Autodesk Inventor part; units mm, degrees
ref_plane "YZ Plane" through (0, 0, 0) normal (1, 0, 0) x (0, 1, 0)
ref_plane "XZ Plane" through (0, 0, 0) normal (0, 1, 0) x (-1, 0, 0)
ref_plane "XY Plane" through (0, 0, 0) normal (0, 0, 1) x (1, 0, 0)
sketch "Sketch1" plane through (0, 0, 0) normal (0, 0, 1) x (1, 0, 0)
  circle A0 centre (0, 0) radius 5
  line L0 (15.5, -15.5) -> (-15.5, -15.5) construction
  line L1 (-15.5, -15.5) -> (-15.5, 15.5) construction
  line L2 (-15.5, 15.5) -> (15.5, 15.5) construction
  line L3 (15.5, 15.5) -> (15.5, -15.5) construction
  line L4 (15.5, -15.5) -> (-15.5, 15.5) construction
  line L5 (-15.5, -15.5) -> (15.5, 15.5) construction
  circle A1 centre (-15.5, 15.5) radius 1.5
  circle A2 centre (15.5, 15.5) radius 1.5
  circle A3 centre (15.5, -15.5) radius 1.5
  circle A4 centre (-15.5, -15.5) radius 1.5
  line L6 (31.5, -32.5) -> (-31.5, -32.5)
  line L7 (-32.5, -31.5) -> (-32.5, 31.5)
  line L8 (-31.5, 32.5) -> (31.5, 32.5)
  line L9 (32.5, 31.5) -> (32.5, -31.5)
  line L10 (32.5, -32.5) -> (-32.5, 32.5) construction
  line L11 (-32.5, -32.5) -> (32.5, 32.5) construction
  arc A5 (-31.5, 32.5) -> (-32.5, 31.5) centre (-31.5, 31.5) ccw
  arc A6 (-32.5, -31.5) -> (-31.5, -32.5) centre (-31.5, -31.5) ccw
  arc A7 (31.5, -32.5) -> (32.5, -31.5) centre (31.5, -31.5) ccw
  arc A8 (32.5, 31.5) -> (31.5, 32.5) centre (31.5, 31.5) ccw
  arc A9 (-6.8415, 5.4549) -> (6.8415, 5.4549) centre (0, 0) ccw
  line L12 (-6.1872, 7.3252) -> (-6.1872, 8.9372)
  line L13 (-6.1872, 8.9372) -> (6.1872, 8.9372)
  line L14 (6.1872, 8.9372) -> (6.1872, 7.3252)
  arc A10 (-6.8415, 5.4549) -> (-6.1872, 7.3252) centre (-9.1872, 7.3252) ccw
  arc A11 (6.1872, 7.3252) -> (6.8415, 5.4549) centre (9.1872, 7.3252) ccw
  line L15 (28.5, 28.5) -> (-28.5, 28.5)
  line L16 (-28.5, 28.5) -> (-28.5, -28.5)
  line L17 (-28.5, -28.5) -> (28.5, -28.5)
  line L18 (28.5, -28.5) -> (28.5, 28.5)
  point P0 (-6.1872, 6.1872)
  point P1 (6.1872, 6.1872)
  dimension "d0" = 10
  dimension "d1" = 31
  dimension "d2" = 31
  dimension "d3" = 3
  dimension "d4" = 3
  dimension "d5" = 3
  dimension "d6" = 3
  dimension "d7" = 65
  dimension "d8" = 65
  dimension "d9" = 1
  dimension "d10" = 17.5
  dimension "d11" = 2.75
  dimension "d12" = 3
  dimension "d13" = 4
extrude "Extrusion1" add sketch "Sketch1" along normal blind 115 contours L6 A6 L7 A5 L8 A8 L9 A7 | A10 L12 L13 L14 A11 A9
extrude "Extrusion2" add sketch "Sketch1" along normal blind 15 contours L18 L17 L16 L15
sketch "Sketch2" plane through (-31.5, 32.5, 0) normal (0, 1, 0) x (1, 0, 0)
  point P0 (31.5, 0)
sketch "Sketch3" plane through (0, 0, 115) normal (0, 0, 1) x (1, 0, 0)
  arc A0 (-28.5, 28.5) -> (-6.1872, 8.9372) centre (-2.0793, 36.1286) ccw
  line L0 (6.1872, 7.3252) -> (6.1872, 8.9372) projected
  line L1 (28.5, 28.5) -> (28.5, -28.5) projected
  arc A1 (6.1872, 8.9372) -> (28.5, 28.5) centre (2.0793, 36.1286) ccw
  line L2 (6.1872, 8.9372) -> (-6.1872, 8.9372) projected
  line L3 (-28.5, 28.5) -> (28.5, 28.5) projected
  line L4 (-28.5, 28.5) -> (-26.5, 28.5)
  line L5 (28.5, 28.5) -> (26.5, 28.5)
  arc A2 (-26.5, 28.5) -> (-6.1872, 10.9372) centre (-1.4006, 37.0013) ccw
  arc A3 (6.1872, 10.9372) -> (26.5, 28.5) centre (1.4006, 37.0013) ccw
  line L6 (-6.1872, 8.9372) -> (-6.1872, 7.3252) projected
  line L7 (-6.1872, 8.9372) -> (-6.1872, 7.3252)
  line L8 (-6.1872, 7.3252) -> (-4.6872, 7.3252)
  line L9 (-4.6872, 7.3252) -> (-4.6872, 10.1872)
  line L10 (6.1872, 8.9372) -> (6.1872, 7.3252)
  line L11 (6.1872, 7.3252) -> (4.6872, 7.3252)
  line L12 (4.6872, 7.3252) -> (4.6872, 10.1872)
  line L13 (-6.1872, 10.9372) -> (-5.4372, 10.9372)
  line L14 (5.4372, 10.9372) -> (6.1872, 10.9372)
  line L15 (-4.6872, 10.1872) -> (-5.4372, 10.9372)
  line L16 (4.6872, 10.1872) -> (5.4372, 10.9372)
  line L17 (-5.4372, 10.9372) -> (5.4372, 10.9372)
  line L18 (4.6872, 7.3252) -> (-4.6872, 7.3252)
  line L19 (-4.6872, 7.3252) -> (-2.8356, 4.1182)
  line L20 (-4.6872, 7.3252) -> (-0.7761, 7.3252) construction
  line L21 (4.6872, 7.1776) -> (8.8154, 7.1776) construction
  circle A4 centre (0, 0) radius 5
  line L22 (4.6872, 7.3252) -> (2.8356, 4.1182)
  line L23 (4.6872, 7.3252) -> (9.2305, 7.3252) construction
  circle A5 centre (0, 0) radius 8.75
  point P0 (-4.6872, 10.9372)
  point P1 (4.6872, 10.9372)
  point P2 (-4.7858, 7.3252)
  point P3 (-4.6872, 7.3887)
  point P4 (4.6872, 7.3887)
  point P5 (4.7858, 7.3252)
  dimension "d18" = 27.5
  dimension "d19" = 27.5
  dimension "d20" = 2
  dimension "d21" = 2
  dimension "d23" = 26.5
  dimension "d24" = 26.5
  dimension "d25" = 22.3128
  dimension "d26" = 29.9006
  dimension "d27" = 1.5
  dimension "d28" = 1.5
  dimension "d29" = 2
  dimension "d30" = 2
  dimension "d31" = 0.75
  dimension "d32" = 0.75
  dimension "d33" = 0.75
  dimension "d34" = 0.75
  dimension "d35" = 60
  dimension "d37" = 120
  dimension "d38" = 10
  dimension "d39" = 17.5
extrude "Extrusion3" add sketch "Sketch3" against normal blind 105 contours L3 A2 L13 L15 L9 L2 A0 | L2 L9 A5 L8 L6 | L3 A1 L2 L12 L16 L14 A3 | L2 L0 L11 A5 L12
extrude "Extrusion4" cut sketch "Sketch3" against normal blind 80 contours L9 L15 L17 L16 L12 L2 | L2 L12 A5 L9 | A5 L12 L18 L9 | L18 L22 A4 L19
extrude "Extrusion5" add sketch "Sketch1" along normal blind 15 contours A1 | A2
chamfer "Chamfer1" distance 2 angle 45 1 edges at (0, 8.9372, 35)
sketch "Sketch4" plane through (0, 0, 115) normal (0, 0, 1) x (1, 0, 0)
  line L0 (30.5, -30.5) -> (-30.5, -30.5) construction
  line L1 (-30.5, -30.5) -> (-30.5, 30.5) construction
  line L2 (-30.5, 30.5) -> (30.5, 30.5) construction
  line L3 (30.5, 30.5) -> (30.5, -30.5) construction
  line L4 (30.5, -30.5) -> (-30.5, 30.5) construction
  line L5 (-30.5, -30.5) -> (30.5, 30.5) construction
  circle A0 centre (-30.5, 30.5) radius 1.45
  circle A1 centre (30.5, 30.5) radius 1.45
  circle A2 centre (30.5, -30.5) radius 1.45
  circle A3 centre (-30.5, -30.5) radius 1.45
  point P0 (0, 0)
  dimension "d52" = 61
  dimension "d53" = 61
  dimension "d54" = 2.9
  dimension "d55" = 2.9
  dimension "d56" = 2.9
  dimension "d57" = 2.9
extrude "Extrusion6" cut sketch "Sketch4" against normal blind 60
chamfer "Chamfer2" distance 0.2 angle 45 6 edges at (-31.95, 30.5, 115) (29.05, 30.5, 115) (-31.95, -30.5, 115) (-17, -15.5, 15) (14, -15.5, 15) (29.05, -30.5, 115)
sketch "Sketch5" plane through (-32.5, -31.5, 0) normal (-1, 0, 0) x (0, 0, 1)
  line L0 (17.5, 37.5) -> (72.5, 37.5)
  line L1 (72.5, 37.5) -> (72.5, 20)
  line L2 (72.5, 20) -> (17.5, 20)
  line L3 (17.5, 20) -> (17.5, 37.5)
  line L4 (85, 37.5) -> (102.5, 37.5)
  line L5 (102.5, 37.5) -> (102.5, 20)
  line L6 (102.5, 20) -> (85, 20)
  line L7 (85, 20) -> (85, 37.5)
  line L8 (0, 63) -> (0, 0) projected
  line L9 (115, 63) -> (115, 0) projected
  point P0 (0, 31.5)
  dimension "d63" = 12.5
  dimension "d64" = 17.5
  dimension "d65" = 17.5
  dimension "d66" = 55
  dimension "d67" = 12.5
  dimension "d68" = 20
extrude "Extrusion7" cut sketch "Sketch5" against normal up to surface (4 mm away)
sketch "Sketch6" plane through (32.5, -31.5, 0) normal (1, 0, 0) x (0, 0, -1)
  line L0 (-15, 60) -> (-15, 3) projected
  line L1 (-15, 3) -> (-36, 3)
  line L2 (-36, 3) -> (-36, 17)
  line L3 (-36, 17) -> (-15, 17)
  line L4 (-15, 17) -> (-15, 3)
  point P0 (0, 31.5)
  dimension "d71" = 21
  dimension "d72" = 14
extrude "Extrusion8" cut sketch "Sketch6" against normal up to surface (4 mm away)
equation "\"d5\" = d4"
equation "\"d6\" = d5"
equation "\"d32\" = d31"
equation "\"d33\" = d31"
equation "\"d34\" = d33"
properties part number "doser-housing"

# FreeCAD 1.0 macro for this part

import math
import FreeCAD as App
import Part
import Sketcher
Q = App.Units.Quantity


def edges_at(feature, points):
    """Names of the edges that pass closest to the given points."""
    edges = feature.Shape.Edges
    near = lambda p: min(range(len(edges)), key=lambda i: edges[i].distToShape(Part.Vertex(*p))[0])
    return sorted({f"Edge{near(p) + 1}" for p in points})


def add_polygon(sketch, points):
    """Adds a closed chain of lines whose ends are joined by coincident constraints."""
    first, n = sketch.GeometryCount, len(points)
    for a, b in zip(points, points[1:] + points[:1]):
        sketch.addGeometry(Part.LineSegment(App.Vector(*a, 0), App.Vector(*b, 0)), False)
    for i in range(n):
        sketch.addConstraint(Sketcher.Constraint("Coincident", first + i, 2, first + (i + 1) % n, 1))

doc = App.newDocument("Part")
params = doc.addObject("Spreadsheet::Sheet", "Params")
for row, (alias, value) in enumerate([
    ("sketch1_diameter", "10 mm"),
    ("sketch1_radius", "1 mm"),
    ("sketch1_radius2", "3 mm"),
    ("sketch1_radius3", "8.75 mm"),
    ("sketch1_width", "63 mm"),
    ("pad1_length", "115 mm"),
    ("sketch2_diameter", "3 mm"),
    ("sketch2_radius", "3 mm"),
    ("sketch2_radius2", "8.75 mm"),
    ("sketch2_width", "57 mm"),
    ("pad2_length", "15 mm"),
    ("sketch3_radius", "27.5 mm"),
    ("sketch3_radius2", "26.5 mm"),
    ("sketch3_width", "2 mm"),
    ("sketch3_radius3", "8.75 mm"),
    ("sketch3_width2", "0.75 mm"),
    ("pad3_length", "105 mm"),
    ("sketch4_radius", "5 mm"),
    ("pocket1_length", "80 mm"),
    ("sketch5_diameter", "3 mm"),
    ("pad4_length", "15 mm"),
    ("chamfer_size", "2 mm"),
    ("sketch6_diameter", "2.9 mm"),
    ("pocket2_length", "60 mm"),
    ("chamfer2_size", "0.2 mm"),
    ("sketch7_height", "55 mm"),
    ("sketch7_width", "17.5 mm"),
    ("pocket3_length", "4 mm"),
    ("sketch8_width", "14 mm"),
    ("sketch8_height", "21 mm"),
    ("pocket4_length", "4 mm"),
], start=1):
    params.set(f"A{row}", alias)
    params.set(f"B{row}", "=" + value)
    params.setAlias(f"B{row}", alias)

body = doc.addObject("PartDesign::Body", "Body")
body.AllowCompound = True

# Sketch on XY plane
sketch1 = doc.addObject("Sketcher::SketchObject", "Sketch")
body.addObject(sketch1)
sketch1.AttachmentSupport = (doc.XY_Plane, [""])
sketch1.MapMode = "FlatFace"
sketch1.addGeometry(Part.LineSegment(App.Vector(-31.5, -32.5, 0), App.Vector(31.5, -32.5, 0)), False)  # 0
sketch1.addGeometry(Part.ArcOfCircle(Part.Circle(App.Vector(31.5, -31.5, 0), App.Vector(0, 0, 1), 1), math.radians(-90), math.radians(0)), False)  # 1
sketch1.addGeometry(Part.LineSegment(App.Vector(32.5, -31.5, 0), App.Vector(32.5, 31.5, 0)), False)  # 2
sketch1.addGeometry(Part.ArcOfCircle(Part.Circle(App.Vector(31.5, 31.5, 0), App.Vector(0, 0, 1), 1), math.radians(0), math.radians(90)), False)  # 3
sketch1.addGeometry(Part.LineSegment(App.Vector(31.5, 32.5, 0), App.Vector(-31.5, 32.5, 0)), False)  # 4
sketch1.addGeometry(Part.ArcOfCircle(Part.Circle(App.Vector(-31.5, 31.5, 0), App.Vector(0, 0, 1), 1), math.radians(90), math.radians(180)), False)  # 5
sketch1.addGeometry(Part.LineSegment(App.Vector(-32.5, 31.5, 0), App.Vector(-32.5, -31.5, 0)), False)  # 6
sketch1.addGeometry(Part.ArcOfCircle(Part.Circle(App.Vector(-31.5, -31.5, 0), App.Vector(0, 0, 1), 1), math.radians(180), math.radians(270)), False)  # 7
add_polygon(sketch1, [(-28.5, 28.5), (28.5, 28.5), (28.5, -28.5), (-28.5, -28.5)])  # lines 8-11
sketch1.addGeometry(Part.ArcOfCircle(Part.Circle(App.Vector(-9.2, 7.3, 0), App.Vector(0, 0, 1), 3), math.radians(-39), math.radians(0)), False)  # 12
sketch1.addGeometry(Part.ArcOfCircle(Part.Circle(App.Vector(0, 0, 0), App.Vector(0, 0, 1), 8.7), math.radians(141), math.radians(399)), False)  # 13
sketch1.addGeometry(Part.ArcOfCircle(Part.Circle(App.Vector(9.2, 7.3, 0), App.Vector(0, 0, 1), 3), math.radians(180), math.radians(219)), False)  # 14
sketch1.addGeometry(Part.LineSegment(App.Vector(6.2, 7.3, 0), App.Vector(6.2, 8.9, 0)), False)  # 15
sketch1.addGeometry(Part.LineSegment(App.Vector(6.2, 8.9, 0), App.Vector(-6.2, 8.9, 0)), False)  # 16
sketch1.addGeometry(Part.LineSegment(App.Vector(-6.2, 8.9, 0), App.Vector(-6.2, 7.3, 0)), False)  # 17
sketch1.addGeometry(Part.Circle(App.Vector(0, 0, 0), App.Vector(0, 0, 1), 5), False)  # 18
sketch1.addConstraint(Sketcher.Constraint("Tangent", 0, 2, 1, 1))
sketch1.addConstraint(Sketcher.Constraint("Tangent", 1, 2, 2, 1))
sketch1.addConstraint(Sketcher.Constraint("Tangent", 2, 2, 3, 1))
sketch1.addConstraint(Sketcher.Constraint("Tangent", 3, 2, 4, 1))
sketch1.addConstraint(Sketcher.Constraint("Tangent", 4, 2, 5, 1))
sketch1.addConstraint(Sketcher.Constraint("Tangent", 5, 2, 6, 1))
sketch1.addConstraint(Sketcher.Constraint("Tangent", 6, 2, 7, 1))
sketch1.addConstraint(Sketcher.Constraint("Tangent", 7, 2, 0, 1))
sketch1.addConstraint(Sketcher.Constraint("Tangent", 12, 1, 13, 1))
sketch1.addConstraint(Sketcher.Constraint("Tangent", 13, 2, 14, 2))
sketch1.addConstraint(Sketcher.Constraint("Tangent", 14, 1, 15, 1))
sketch1.addConstraint(Sketcher.Constraint("Coincident", 15, 2, 16, 1))
sketch1.addConstraint(Sketcher.Constraint("Coincident", 16, 2, 17, 1))
sketch1.addConstraint(Sketcher.Constraint("Tangent", 17, 2, 12, 2))
sketch1.addConstraint(Sketcher.Constraint("Horizontal", 0))
sketch1.addConstraint(Sketcher.Constraint("Vertical", 2))
sketch1.addConstraint(Sketcher.Constraint("Horizontal", 4))
sketch1.addConstraint(Sketcher.Constraint("Vertical", 6))
sketch1.addConstraint(Sketcher.Constraint("Horizontal", 8))
sketch1.addConstraint(Sketcher.Constraint("Vertical", 9))
sketch1.addConstraint(Sketcher.Constraint("Horizontal", 10))
sketch1.addConstraint(Sketcher.Constraint("Vertical", 11))
sketch1.addConstraint(Sketcher.Constraint("Vertical", 15))
sketch1.addConstraint(Sketcher.Constraint("Horizontal", 16))
sketch1.addConstraint(Sketcher.Constraint("Vertical", 17))
sketch1.addConstraint(Sketcher.Constraint("Coincident", 13, 3, -1, 1))
sketch1.addConstraint(Sketcher.Constraint("Coincident", 18, 3, -1, 1))
sketch1.addConstraint(Sketcher.Constraint("Equal", 1, 3))
sketch1.addConstraint(Sketcher.Constraint("Equal", 3, 5))
sketch1.addConstraint(Sketcher.Constraint("Equal", 5, 7))
sketch1.addConstraint(Sketcher.Constraint("Equal", 12, 14))
sketch1.addConstraint(Sketcher.Constraint("Symmetric", 1, 3, 5, 3, -1, 1))
sketch1.addConstraint(Sketcher.Constraint("Symmetric", 8, 2, 10, 2, -1, 1))
sketch1.addConstraint(Sketcher.Constraint("Horizontal", 12, 3, 14, 3))
sketch1.addConstraint(Sketcher.Constraint("Equal", 4, 2))
sketch1.addConstraint(Sketcher.Constraint("Equal", 10, 9))
sketch1.addConstraint(Sketcher.Constraint("Diameter", 18, 10.0))
sketch1.addConstraint(Sketcher.Constraint("Radius", 1, 1.0))
sketch1.addConstraint(Sketcher.Constraint("Radius", 12, 3.0))
sketch1.addConstraint(Sketcher.Constraint("Radius", 13, 8.75))
sketch1.addConstraint(Sketcher.Constraint("DistanceX", 8, 2, 3, 3, 3.0))
sketch1.addConstraint(Sketcher.Constraint("DistanceX", 0, 1, 0, 2, 63.0))
sketch1.addConstraint(Sketcher.Constraint("DistanceY", 15, 1, 15, 2, 1.612))
sketch1.addConstraint(Sketcher.Constraint("DistanceX", 16, 2, 16, 1, 12.3744))
sketch1.setExpression("Constraints[40]", "Params.sketch1_diameter")
sketch1.setExpression("Constraints[41]", "Params.sketch1_radius")
sketch1.setExpression("Constraints[42]", "Params.sketch1_radius2")
sketch1.setExpression("Constraints[43]", "Params.sketch1_radius3")
sketch1.setExpression("Constraints[45]", "Params.sketch1_width")
pad1 = doc.addObject("PartDesign::Pad", "Pad")
body.addObject(pad1)
pad1.Profile = sketch1
pad1.setExpression("Length", "Params.pad1_length")

# Sketch on XY plane
sketch2 = doc.addObject("Sketcher::SketchObject", "Sketch001")
body.addObject(sketch2)
sketch2.AttachmentSupport = (doc.XY_Plane, [""])
sketch2.MapMode = "FlatFace"
add_polygon(sketch2, [(28.5, -28.5), (28.5, 28.5), (-28.5, 28.5), (-28.5, -28.5)])  # lines 0-3
sketch2.addGeometry(Part.Circle(App.Vector(-15.5, -15.5, 0), App.Vector(0, 0, 1), 1.5), False)  # 4
sketch2.addGeometry(Part.Circle(App.Vector(15.5, -15.5, 0), App.Vector(0, 0, 1), 1.5), False)  # 5
sketch2.addGeometry(Part.Circle(App.Vector(-15.5, 15.5, 0), App.Vector(0, 0, 1), 1.5), False)  # 6
sketch2.addGeometry(Part.ArcOfCircle(Part.Circle(App.Vector(0, 0, 0), App.Vector(0, 0, 1), 8.7), math.radians(141), math.radians(399)), False)  # 7
sketch2.addGeometry(Part.ArcOfCircle(Part.Circle(App.Vector(-9.2, 7.3, 0), App.Vector(0, 0, 1), 3), math.radians(-39), math.radians(0)), False)  # 8
sketch2.addGeometry(Part.LineSegment(App.Vector(-6.2, 7.3, 0), App.Vector(-6.2, 8.9, 0)), False)  # 9
sketch2.addGeometry(Part.LineSegment(App.Vector(-6.2, 8.9, 0), App.Vector(6.2, 8.9, 0)), False)  # 10
sketch2.addGeometry(Part.LineSegment(App.Vector(6.2, 8.9, 0), App.Vector(6.2, 7.3, 0)), False)  # 11
sketch2.addGeometry(Part.ArcOfCircle(Part.Circle(App.Vector(9.2, 7.3, 0), App.Vector(0, 0, 1), 3), math.radians(180), math.radians(219)), False)  # 12
sketch2.addGeometry(Part.Circle(App.Vector(15.5, 15.5, 0), App.Vector(0, 0, 1), 1.5), False)  # 13
sketch2.addConstraint(Sketcher.Constraint("Tangent", 7, 1, 8, 1))
sketch2.addConstraint(Sketcher.Constraint("Tangent", 8, 2, 9, 1))
sketch2.addConstraint(Sketcher.Constraint("Coincident", 9, 2, 10, 1))
sketch2.addConstraint(Sketcher.Constraint("Coincident", 10, 2, 11, 1))
sketch2.addConstraint(Sketcher.Constraint("Tangent", 11, 2, 12, 1))
sketch2.addConstraint(Sketcher.Constraint("Tangent", 12, 2, 7, 2))
sketch2.addConstraint(Sketcher.Constraint("Vertical", 0))
sketch2.addConstraint(Sketcher.Constraint("Horizontal", 1))
sketch2.addConstraint(Sketcher.Constraint("Vertical", 2))
sketch2.addConstraint(Sketcher.Constraint("Horizontal", 3))
sketch2.addConstraint(Sketcher.Constraint("Vertical", 9))
sketch2.addConstraint(Sketcher.Constraint("Horizontal", 10))
sketch2.addConstraint(Sketcher.Constraint("Vertical", 11))
sketch2.addConstraint(Sketcher.Constraint("Coincident", 7, 3, -1, 1))
sketch2.addConstraint(Sketcher.Constraint("Equal", 4, 5))
sketch2.addConstraint(Sketcher.Constraint("Equal", 5, 6))
sketch2.addConstraint(Sketcher.Constraint("Equal", 8, 12))
sketch2.addConstraint(Sketcher.Constraint("Equal", 6, 13))
sketch2.addConstraint(Sketcher.Constraint("Symmetric", 5, 3, 6, 3, -1, 1))
sketch2.addConstraint(Sketcher.Constraint("Symmetric", 4, 3, 13, 3, -1, 1))
sketch2.addConstraint(Sketcher.Constraint("Symmetric", 0, 2, 2, 2, -1, 1))
sketch2.addConstraint(Sketcher.Constraint("Symmetric", 4, 3, 5, 3, -2))
sketch2.addConstraint(Sketcher.Constraint("Horizontal", 8, 3, 12, 3))
sketch2.addConstraint(Sketcher.Constraint("Equal", 3, 0))
sketch2.addConstraint(Sketcher.Constraint("Diameter", 4, 3.0))
sketch2.addConstraint(Sketcher.Constraint("Radius", 8, 3.0))
sketch2.addConstraint(Sketcher.Constraint("Radius", 7, 8.75))
sketch2.addConstraint(Sketcher.Constraint("DistanceX", 4, 3, 5, 3, 31.0))
sketch2.addConstraint(Sketcher.Constraint("DistanceY", 4, 3, 6, 3, 31.0))
sketch2.addConstraint(Sketcher.Constraint("DistanceX", 1, 2, 1, 1, 57.0))
sketch2.addConstraint(Sketcher.Constraint("DistanceY", 9, 1, 9, 2, 1.612))
sketch2.addConstraint(Sketcher.Constraint("DistanceX", 10, 1, 10, 2, 12.3744))
sketch2.setExpression("Constraints[28]", "Params.sketch2_diameter")
sketch2.setExpression("Constraints[29]", "Params.sketch2_radius")
sketch2.setExpression("Constraints[30]", "Params.sketch2_radius2")
sketch2.setExpression("Constraints[33]", "Params.sketch2_width")
pad2 = doc.addObject("PartDesign::Pad", "Pad001")
body.addObject(pad2)
pad2.Profile = sketch2
pad2.setExpression("Length", "Params.pad2_length")

# Sketch on XY plane
sketch3 = doc.addObject("Sketcher::SketchObject", "Sketch002")
body.addObject(sketch3)
sketch3.AttachmentSupport = (doc.XY_Plane, [""])
sketch3.MapMode = "FlatFace"
sketch3.AttachmentOffset = App.Placement(App.Vector(0, 0, 115), App.Rotation())
sketch3.addGeometry(Part.LineSegment(App.Vector(-26.5, 28.5, 0), App.Vector(-28.5, 28.5, 0)), False)
sketch3.addGeometry(Part.ArcOfCircle(Part.Circle(App.Vector(-2.08, 36.13, 0), App.Vector(0, 0, 1), 27.5), math.radians(-164), math.radians(-99)), False)
sketch3.addGeometry(Part.LineSegment(App.Vector(-6.19, 8.94, 0), App.Vector(-6.19, 7.33, 0)), False)
sketch3.addGeometry(Part.LineSegment(App.Vector(-6.19, 7.33, 0), App.Vector(-4.79, 7.33, 0)), False)
sketch3.addGeometry(Part.ArcOfCircle(Part.Circle(App.Vector(0, 0, 0), App.Vector(0, 0, 1), 8.75), math.radians(122.39), math.radians(123.16)), False)
sketch3.addGeometry(Part.LineSegment(App.Vector(-4.69, 7.39, 0), App.Vector(-4.69, 10.19, 0)), False)
sketch3.addGeometry(Part.LineSegment(App.Vector(-4.69, 10.19, 0), App.Vector(-5.44, 10.94, 0)), False)
sketch3.addGeometry(Part.LineSegment(App.Vector(-5.44, 10.94, 0), App.Vector(-6.19, 10.94, 0)), False)
sketch3.addGeometry(Part.ArcOfCircle(Part.Circle(App.Vector(-1.4, 37, 0), App.Vector(0, 0, 1), 26.5), math.radians(-161), math.radians(-100)), False)
sketch3.addGeometry(Part.LineSegment(App.Vector(28.5, 28.5, 0), App.Vector(26.5, 28.5, 0)), False)
sketch3.addGeometry(Part.ArcOfCircle(Part.Circle(App.Vector(1.4, 37, 0), App.Vector(0, 0, 1), 26.5), math.radians(-80), math.radians(-19)), False)
sketch3.addGeometry(Part.LineSegment(App.Vector(6.19, 10.94, 0), App.Vector(5.44, 10.94, 0)), False)
sketch3.addGeometry(Part.LineSegment(App.Vector(5.44, 10.94, 0), App.Vector(4.69, 10.19, 0)), False)
sketch3.addGeometry(Part.LineSegment(App.Vector(4.69, 10.19, 0), App.Vector(4.69, 7.39, 0)), False)
sketch3.addGeometry(Part.ArcOfCircle(Part.Circle(App.Vector(0, 0, 0), App.Vector(0, 0, 1), 8.75), math.radians(56.84), math.radians(57.61)), False)
sketch3.addGeometry(Part.LineSegment(App.Vector(4.79, 7.33, 0), App.Vector(6.19, 7.33, 0)), False)
sketch3.addGeometry(Part.LineSegment(App.Vector(6.19, 7.33, 0), App.Vector(6.19, 8.94, 0)), False)
sketch3.addGeometry(Part.ArcOfCircle(Part.Circle(App.Vector(2.08, 36.13, 0), App.Vector(0, 0, 1), 27.5), math.radians(-81), math.radians(-16)), False)
sketch3.addConstraint(Sketcher.Constraint("Coincident", 0, 2, 1, 1))
sketch3.addConstraint(Sketcher.Constraint("Coincident", 1, 2, 2, 1))
sketch3.addConstraint(Sketcher.Constraint("Coincident", 2, 2, 3, 1))
sketch3.addConstraint(Sketcher.Constraint("Coincident", 3, 2, 4, 2))
sketch3.addConstraint(Sketcher.Constraint("Coincident", 4, 1, 5, 1))
sketch3.addConstraint(Sketcher.Constraint("Coincident", 5, 2, 6, 1))
sketch3.addConstraint(Sketcher.Constraint("Coincident", 6, 2, 7, 1))
sketch3.addConstraint(Sketcher.Constraint("Coincident", 7, 2, 8, 2))
sketch3.addConstraint(Sketcher.Constraint("Coincident", 8, 1, 0, 1))
sketch3.addConstraint(Sketcher.Constraint("Coincident", 9, 2, 10, 2))
sketch3.addConstraint(Sketcher.Constraint("Coincident", 10, 1, 11, 1))
sketch3.addConstraint(Sketcher.Constraint("Coincident", 11, 2, 12, 1))
sketch3.addConstraint(Sketcher.Constraint("Coincident", 12, 2, 13, 1))
sketch3.addConstraint(Sketcher.Constraint("Coincident", 13, 2, 14, 2))
sketch3.addConstraint(Sketcher.Constraint("Coincident", 14, 1, 15, 1))
sketch3.addConstraint(Sketcher.Constraint("Coincident", 15, 2, 16, 1))
sketch3.addConstraint(Sketcher.Constraint("Coincident", 16, 2, 17, 1))
sketch3.addConstraint(Sketcher.Constraint("Coincident", 17, 2, 9, 1))
sketch3.addConstraint(Sketcher.Constraint("Horizontal", 0))
sketch3.addConstraint(Sketcher.Constraint("Vertical", 2))
sketch3.addConstraint(Sketcher.Constraint("Horizontal", 3))
sketch3.addConstraint(Sketcher.Constraint("Vertical", 5))
sketch3.addConstraint(Sketcher.Constraint("Horizontal", 7))
sketch3.addConstraint(Sketcher.Constraint("Horizontal", 9))
sketch3.addConstraint(Sketcher.Constraint("Horizontal", 11))
sketch3.addConstraint(Sketcher.Constraint("Vertical", 13))
sketch3.addConstraint(Sketcher.Constraint("Horizontal", 15))
sketch3.addConstraint(Sketcher.Constraint("Vertical", 16))
sketch3.addConstraint(Sketcher.Constraint("Coincident", 4, 3, -1, 1))
sketch3.addConstraint(Sketcher.Constraint("Coincident", 14, 3, -1, 1))
sketch3.addConstraint(Sketcher.Constraint("Equal", 8, 10))
sketch3.addConstraint(Sketcher.Constraint("Equal", 4, 14))
sketch3.addConstraint(Sketcher.Constraint("Equal", 1, 17))
sketch3.addConstraint(Sketcher.Constraint("Symmetric", 8, 3, 10, 3, -2))
sketch3.addConstraint(Sketcher.Constraint("Symmetric", 1, 3, 17, 3, -2))
sketch3.addConstraint(Sketcher.Constraint("Symmetric", 6, 2, 11, 2, -2))
sketch3.addConstraint(Sketcher.Constraint("Symmetric", 5, 2, 12, 2, -2))
sketch3.addConstraint(Sketcher.Constraint("Symmetric", 2, 2, 15, 2, -2))
sketch3.addConstraint(Sketcher.Constraint("Perpendicular", 6, 12))
sketch3.addConstraint(Sketcher.Constraint("Horizontal", 8, 1, 9, 2))
sketch3.addConstraint(Sketcher.Constraint("Vertical", 2, 2, 7, 2))
sketch3.addConstraint(Sketcher.Constraint("Radius", 1, 27.5))
sketch3.addConstraint(Sketcher.Constraint("Radius", 8, 26.5))
sketch3.addConstraint(Sketcher.Constraint("DistanceX", 0, 2, 0, 1, 2.0))
sketch3.addConstraint(Sketcher.Constraint("Radius", 4, 8.75))
sketch3.addConstraint(Sketcher.Constraint("DistanceY", 1, 2, 6, 2, 2.0))
sketch3.addConstraint(Sketcher.Constraint("DistanceX", 7, 2, 7, 1, 0.75))
sketch3.addConstraint(Sketcher.Constraint("DistanceX", 8, 1, -1, 1, 26.5))
sketch3.addConstraint(Sketcher.Constraint("DistanceX", 2, 2, 4, 1, 1.5))
sketch3.addConstraint(Sketcher.Constraint("DistanceY", -1, 1, 0, 2, 28.5))
sketch3.addConstraint(Sketcher.Constraint("DistanceX", 0, 2, 10, 3, 29.9006))
sketch3.addConstraint(Sketcher.Constraint("DistanceX", 10, 1, 17, 2, 22.3128))
sketch3.addConstraint(Sketcher.Constraint("DistanceY", 2, 2, 2, 1, 1.612))
sketch3.setExpression("Constraints[41]", "Params.sketch3_radius")
sketch3.setExpression("Constraints[42]", "Params.sketch3_radius2")
sketch3.setExpression("Constraints[43]", "Params.sketch3_width")
sketch3.setExpression("Constraints[44]", "Params.sketch3_radius3")
sketch3.setExpression("Constraints[46]", "Params.sketch3_width2")
pad3 = doc.addObject("PartDesign::Pad", "Pad002")
body.addObject(pad3)
pad3.Profile = sketch3
pad3.setExpression("Length", "Params.pad3_length")
pad3.Reversed = True

# Sketch on XY plane
sketch4 = doc.addObject("Sketcher::SketchObject", "Sketch003")
body.addObject(sketch4)
sketch4.AttachmentSupport = (doc.XY_Plane, [""])
sketch4.MapMode = "FlatFace"
sketch4.AttachmentOffset = App.Placement(App.Vector(0, 0, 115), App.Rotation())
sketch4.addGeometry(Part.LineSegment(App.Vector(-4.7, 10.2, 0), App.Vector(-4.7, 7.3, 0)), False)
sketch4.addGeometry(Part.LineSegment(App.Vector(-4.7, 7.3, 0), App.Vector(-2.8, 4.1, 0)), False)
sketch4.addGeometry(Part.ArcOfCircle(Part.Circle(App.Vector(0, 0, 0), App.Vector(0, 0, 1), 5), math.radians(55), math.radians(125)), False)
sketch4.addGeometry(Part.LineSegment(App.Vector(2.8, 4.1, 0), App.Vector(4.7, 7.3, 0)), False)
sketch4.addGeometry(Part.LineSegment(App.Vector(4.7, 7.3, 0), App.Vector(4.7, 10.2, 0)), False)
sketch4.addGeometry(Part.LineSegment(App.Vector(4.7, 10.2, 0), App.Vector(5.4, 10.9, 0)), False)
sketch4.addGeometry(Part.LineSegment(App.Vector(5.4, 10.9, 0), App.Vector(-5.4, 10.9, 0)), False)
sketch4.addGeometry(Part.LineSegment(App.Vector(-5.4, 10.9, 0), App.Vector(-4.7, 10.2, 0)), False)
sketch4.addConstraint(Sketcher.Constraint("Coincident", 0, 2, 1, 1))
sketch4.addConstraint(Sketcher.Constraint("Coincident", 1, 2, 2, 2))
sketch4.addConstraint(Sketcher.Constraint("Coincident", 2, 1, 3, 1))
sketch4.addConstraint(Sketcher.Constraint("Coincident", 3, 2, 4, 1))
sketch4.addConstraint(Sketcher.Constraint("Coincident", 4, 2, 5, 1))
sketch4.addConstraint(Sketcher.Constraint("Coincident", 5, 2, 6, 1))
sketch4.addConstraint(Sketcher.Constraint("Coincident", 6, 2, 7, 1))
sketch4.addConstraint(Sketcher.Constraint("Coincident", 7, 2, 0, 1))
sketch4.addConstraint(Sketcher.Constraint("Vertical", 0))
sketch4.addConstraint(Sketcher.Constraint("Vertical", 4))
sketch4.addConstraint(Sketcher.Constraint("Horizontal", 6))
sketch4.addConstraint(Sketcher.Constraint("Coincident", 2, 3, -1, 1))
sketch4.addConstraint(Sketcher.Constraint("Symmetric", 0, 2, 3, 2, -2))
sketch4.addConstraint(Sketcher.Constraint("Perpendicular", 5, 7))
sketch4.addConstraint(Sketcher.Constraint("Horizontal", 1, 2, 2, 1))
sketch4.addConstraint(Sketcher.Constraint("Horizontal", 4, 2, 7, 2))
sketch4.addConstraint(Sketcher.Constraint("Equal", 5, 7))
sketch4.addConstraint(Sketcher.Constraint("Radius", 2, 5.0))
sketch4.addConstraint(Sketcher.Constraint("Angle", 1, Q("-59.9995 deg")))
sketch4.addConstraint(Sketcher.Constraint("DistanceX", 4, 2, 5, 2, 0.75))
sketch4.addConstraint(Sketcher.Constraint("DistanceY", 0, 2, 0, 1, 2.862))
sketch4.addConstraint(Sketcher.Constraint("DistanceX", 6, 2, 6, 1, 10.8744))
sketch4.addConstraint(Sketcher.Constraint("DistanceY", 1, 2, 0, 2, 3.207))
sketch4.setExpression("Constraints[17]", "Params.sketch4_radius")
pocket1 = doc.addObject("PartDesign::Pocket", "Pocket")
body.addObject(pocket1)
pocket1.Profile = sketch4
pocket1.setExpression("Length", "Params.pocket1_length")

# Sketch on XY plane
sketch5 = doc.addObject("Sketcher::SketchObject", "Sketch004")
body.addObject(sketch5)
sketch5.AttachmentSupport = (doc.XY_Plane, [""])
sketch5.MapMode = "FlatFace"
sketch5.addGeometry(Part.Circle(App.Vector(-15.5, 15.5, 0), App.Vector(0, 0, 1), 1.5), False)
sketch5.addGeometry(Part.Circle(App.Vector(15.5, 15.5, 0), App.Vector(0, 0, 1), 1.5), False)
sketch5.addConstraint(Sketcher.Constraint("Equal", 0, 1))
sketch5.addConstraint(Sketcher.Constraint("Symmetric", 0, 3, 1, 3, -2))
sketch5.addConstraint(Sketcher.Constraint("Diameter", 0, 3.0))
sketch5.addConstraint(Sketcher.Constraint("DistanceX", 0, 3, 1, 3, 31.0))
sketch5.addConstraint(Sketcher.Constraint("DistanceY", -1, 1, 0, 3, 15.5))
sketch5.setExpression("Constraints[2]", "Params.sketch5_diameter")
pad4 = doc.addObject("PartDesign::Pad", "Pad003")
body.addObject(pad4)
pad4.Profile = sketch5
pad4.setExpression("Length", "Params.pad4_length")
doc.recompute()

chamfer = doc.addObject("PartDesign::Chamfer", "Chamfer")
body.addObject(chamfer)
chamfer.Base = (pad4, edges_at(pad4, [(0, 8.937, 35)]))
chamfer.setExpression("Size", "Params.chamfer_size")

# Sketch on XY plane
sketch6 = doc.addObject("Sketcher::SketchObject", "Sketch005")
body.addObject(sketch6)
sketch6.AttachmentSupport = (doc.XY_Plane, [""])
sketch6.MapMode = "FlatFace"
sketch6.AttachmentOffset = App.Placement(App.Vector(0, 0, 115), App.Rotation())
sketch6.addGeometry(Part.Circle(App.Vector(-30.5, 30.5, 0), App.Vector(0, 0, 1), 1.4), False)
sketch6.addGeometry(Part.Circle(App.Vector(30.5, 30.5, 0), App.Vector(0, 0, 1), 1.4), False)
sketch6.addGeometry(Part.Circle(App.Vector(30.5, -30.5, 0), App.Vector(0, 0, 1), 1.4), False)
sketch6.addGeometry(Part.Circle(App.Vector(-30.5, -30.5, 0), App.Vector(0, 0, 1), 1.4), False)
sketch6.addConstraint(Sketcher.Constraint("Equal", 0, 1))
sketch6.addConstraint(Sketcher.Constraint("Equal", 1, 2))
sketch6.addConstraint(Sketcher.Constraint("Equal", 2, 3))
sketch6.addConstraint(Sketcher.Constraint("Symmetric", 0, 3, 2, 3, -1, 1))
sketch6.addConstraint(Sketcher.Constraint("Symmetric", 1, 3, 3, 3, -1, 1))
sketch6.addConstraint(Sketcher.Constraint("Symmetric", 0, 3, 1, 3, -2))
sketch6.addConstraint(Sketcher.Constraint("Diameter", 0, 2.9))
sketch6.addConstraint(Sketcher.Constraint("DistanceX", 0, 3, 1, 3, 61.0))
sketch6.addConstraint(Sketcher.Constraint("DistanceY", 2, 3, 1, 3, 61.0))
sketch6.setExpression("Constraints[6]", "Params.sketch6_diameter")
pocket2 = doc.addObject("PartDesign::Pocket", "Pocket001")
body.addObject(pocket2)
pocket2.Profile = sketch6
pocket2.setExpression("Length", "Params.pocket2_length")
doc.recompute()

chamfer2 = doc.addObject("PartDesign::Chamfer", "Chamfer001")
body.addObject(chamfer2)
chamfer2.Base = (pocket2, edges_at(pocket2, [
    (-31.95, 30.5, 115),
    (29.05, 30.5, 115),
    (-31.95, -30.5, 115),
    (-17, -15.5, 15),
    (14, -15.5, 15),
    (29.05, -30.5, 115),
]))
chamfer2.setExpression("Size", "Params.chamfer2_size")

# Sketch on YZ plane
sketch7 = doc.addObject("Sketcher::SketchObject", "Sketch006")
body.addObject(sketch7)
sketch7.AttachmentSupport = (doc.YZ_Plane, [""])
sketch7.MapMode = "FlatFace"
sketch7.AttachmentOffset = App.Placement(App.Vector(0, 0, -32.5), App.Rotation())
add_polygon(sketch7, [(6, 72), (6, 18), (-12, 18), (-12, 72)])  # lines 0-3
add_polygon(sketch7, [(6, 102), (6, 85), (-12, 85), (-12, 102)])  # lines 4-7
sketch7.addConstraint(Sketcher.Constraint("Vertical", 0))
sketch7.addConstraint(Sketcher.Constraint("Horizontal", 1))
sketch7.addConstraint(Sketcher.Constraint("Vertical", 2))
sketch7.addConstraint(Sketcher.Constraint("Horizontal", 3))
sketch7.addConstraint(Sketcher.Constraint("Vertical", 4))
sketch7.addConstraint(Sketcher.Constraint("Horizontal", 5))
sketch7.addConstraint(Sketcher.Constraint("Vertical", 6))
sketch7.addConstraint(Sketcher.Constraint("Horizontal", 7))
sketch7.addConstraint(Sketcher.Constraint("Vertical", 3, 2, 4, 2))
sketch7.addConstraint(Sketcher.Constraint("Vertical", 2, 2, 5, 2))
sketch7.addConstraint(Sketcher.Constraint("Equal", 7, 4))
sketch7.addConstraint(Sketcher.Constraint("DistanceY", 0, 2, 0, 1, 55.0))
sketch7.addConstraint(Sketcher.Constraint("DistanceX", 1, 2, 1, 1, 17.5))
sketch7.addConstraint(Sketcher.Constraint("DistanceY", -1, 1, 0, 2, 17.5))
sketch7.addConstraint(Sketcher.Constraint("DistanceY", 3, 2, 4, 2, 12.5))
sketch7.addConstraint(Sketcher.Constraint("DistanceX", -1, 1, 0, 2, 6.0))
sketch7.setExpression("Constraints[19]", "Params.sketch7_height")
sketch7.setExpression("Constraints[20]", "Params.sketch7_width")
pocket3 = doc.addObject("PartDesign::Pocket", "Pocket002")
body.addObject(pocket3)
pocket3.Profile = sketch7
pocket3.setExpression("Length", "Params.pocket3_length")
pocket3.Reversed = True

# Sketch on YZ plane
sketch8 = doc.addObject("Sketcher::SketchObject", "Sketch007")
body.addObject(sketch8)
sketch8.AttachmentSupport = (doc.YZ_Plane, [""])
sketch8.MapMode = "FlatFace"
sketch8.AttachmentOffset = App.Placement(App.Vector(0, 0, 32.5), App.Rotation())
add_polygon(sketch8, [(-28, 15), (-14, 15), (-14, 36), (-28, 36)])  # lines 0-3
sketch8.addConstraint(Sketcher.Constraint("Horizontal", 0))
sketch8.addConstraint(Sketcher.Constraint("Vertical", 1))
sketch8.addConstraint(Sketcher.Constraint("Horizontal", 2))
sketch8.addConstraint(Sketcher.Constraint("Vertical", 3))
sketch8.addConstraint(Sketcher.Constraint("DistanceX", 0, 1, 0, 2, 14.0))
sketch8.addConstraint(Sketcher.Constraint("DistanceY", 1, 1, 1, 2, 21.0))
sketch8.addConstraint(Sketcher.Constraint("DistanceY", -1, 1, 0, 2, 15.0))
sketch8.addConstraint(Sketcher.Constraint("DistanceX", 0, 2, -1, 1, 14.5))
sketch8.setExpression("Constraints[8]", "Params.sketch8_width")
sketch8.setExpression("Constraints[9]", "Params.sketch8_height")
pocket4 = doc.addObject("PartDesign::Pocket", "Pocket003")
body.addObject(pocket4)
pocket4.Profile = sketch8
pocket4.setExpression("Length", "Params.pocket4_length")

doc.recompute()
